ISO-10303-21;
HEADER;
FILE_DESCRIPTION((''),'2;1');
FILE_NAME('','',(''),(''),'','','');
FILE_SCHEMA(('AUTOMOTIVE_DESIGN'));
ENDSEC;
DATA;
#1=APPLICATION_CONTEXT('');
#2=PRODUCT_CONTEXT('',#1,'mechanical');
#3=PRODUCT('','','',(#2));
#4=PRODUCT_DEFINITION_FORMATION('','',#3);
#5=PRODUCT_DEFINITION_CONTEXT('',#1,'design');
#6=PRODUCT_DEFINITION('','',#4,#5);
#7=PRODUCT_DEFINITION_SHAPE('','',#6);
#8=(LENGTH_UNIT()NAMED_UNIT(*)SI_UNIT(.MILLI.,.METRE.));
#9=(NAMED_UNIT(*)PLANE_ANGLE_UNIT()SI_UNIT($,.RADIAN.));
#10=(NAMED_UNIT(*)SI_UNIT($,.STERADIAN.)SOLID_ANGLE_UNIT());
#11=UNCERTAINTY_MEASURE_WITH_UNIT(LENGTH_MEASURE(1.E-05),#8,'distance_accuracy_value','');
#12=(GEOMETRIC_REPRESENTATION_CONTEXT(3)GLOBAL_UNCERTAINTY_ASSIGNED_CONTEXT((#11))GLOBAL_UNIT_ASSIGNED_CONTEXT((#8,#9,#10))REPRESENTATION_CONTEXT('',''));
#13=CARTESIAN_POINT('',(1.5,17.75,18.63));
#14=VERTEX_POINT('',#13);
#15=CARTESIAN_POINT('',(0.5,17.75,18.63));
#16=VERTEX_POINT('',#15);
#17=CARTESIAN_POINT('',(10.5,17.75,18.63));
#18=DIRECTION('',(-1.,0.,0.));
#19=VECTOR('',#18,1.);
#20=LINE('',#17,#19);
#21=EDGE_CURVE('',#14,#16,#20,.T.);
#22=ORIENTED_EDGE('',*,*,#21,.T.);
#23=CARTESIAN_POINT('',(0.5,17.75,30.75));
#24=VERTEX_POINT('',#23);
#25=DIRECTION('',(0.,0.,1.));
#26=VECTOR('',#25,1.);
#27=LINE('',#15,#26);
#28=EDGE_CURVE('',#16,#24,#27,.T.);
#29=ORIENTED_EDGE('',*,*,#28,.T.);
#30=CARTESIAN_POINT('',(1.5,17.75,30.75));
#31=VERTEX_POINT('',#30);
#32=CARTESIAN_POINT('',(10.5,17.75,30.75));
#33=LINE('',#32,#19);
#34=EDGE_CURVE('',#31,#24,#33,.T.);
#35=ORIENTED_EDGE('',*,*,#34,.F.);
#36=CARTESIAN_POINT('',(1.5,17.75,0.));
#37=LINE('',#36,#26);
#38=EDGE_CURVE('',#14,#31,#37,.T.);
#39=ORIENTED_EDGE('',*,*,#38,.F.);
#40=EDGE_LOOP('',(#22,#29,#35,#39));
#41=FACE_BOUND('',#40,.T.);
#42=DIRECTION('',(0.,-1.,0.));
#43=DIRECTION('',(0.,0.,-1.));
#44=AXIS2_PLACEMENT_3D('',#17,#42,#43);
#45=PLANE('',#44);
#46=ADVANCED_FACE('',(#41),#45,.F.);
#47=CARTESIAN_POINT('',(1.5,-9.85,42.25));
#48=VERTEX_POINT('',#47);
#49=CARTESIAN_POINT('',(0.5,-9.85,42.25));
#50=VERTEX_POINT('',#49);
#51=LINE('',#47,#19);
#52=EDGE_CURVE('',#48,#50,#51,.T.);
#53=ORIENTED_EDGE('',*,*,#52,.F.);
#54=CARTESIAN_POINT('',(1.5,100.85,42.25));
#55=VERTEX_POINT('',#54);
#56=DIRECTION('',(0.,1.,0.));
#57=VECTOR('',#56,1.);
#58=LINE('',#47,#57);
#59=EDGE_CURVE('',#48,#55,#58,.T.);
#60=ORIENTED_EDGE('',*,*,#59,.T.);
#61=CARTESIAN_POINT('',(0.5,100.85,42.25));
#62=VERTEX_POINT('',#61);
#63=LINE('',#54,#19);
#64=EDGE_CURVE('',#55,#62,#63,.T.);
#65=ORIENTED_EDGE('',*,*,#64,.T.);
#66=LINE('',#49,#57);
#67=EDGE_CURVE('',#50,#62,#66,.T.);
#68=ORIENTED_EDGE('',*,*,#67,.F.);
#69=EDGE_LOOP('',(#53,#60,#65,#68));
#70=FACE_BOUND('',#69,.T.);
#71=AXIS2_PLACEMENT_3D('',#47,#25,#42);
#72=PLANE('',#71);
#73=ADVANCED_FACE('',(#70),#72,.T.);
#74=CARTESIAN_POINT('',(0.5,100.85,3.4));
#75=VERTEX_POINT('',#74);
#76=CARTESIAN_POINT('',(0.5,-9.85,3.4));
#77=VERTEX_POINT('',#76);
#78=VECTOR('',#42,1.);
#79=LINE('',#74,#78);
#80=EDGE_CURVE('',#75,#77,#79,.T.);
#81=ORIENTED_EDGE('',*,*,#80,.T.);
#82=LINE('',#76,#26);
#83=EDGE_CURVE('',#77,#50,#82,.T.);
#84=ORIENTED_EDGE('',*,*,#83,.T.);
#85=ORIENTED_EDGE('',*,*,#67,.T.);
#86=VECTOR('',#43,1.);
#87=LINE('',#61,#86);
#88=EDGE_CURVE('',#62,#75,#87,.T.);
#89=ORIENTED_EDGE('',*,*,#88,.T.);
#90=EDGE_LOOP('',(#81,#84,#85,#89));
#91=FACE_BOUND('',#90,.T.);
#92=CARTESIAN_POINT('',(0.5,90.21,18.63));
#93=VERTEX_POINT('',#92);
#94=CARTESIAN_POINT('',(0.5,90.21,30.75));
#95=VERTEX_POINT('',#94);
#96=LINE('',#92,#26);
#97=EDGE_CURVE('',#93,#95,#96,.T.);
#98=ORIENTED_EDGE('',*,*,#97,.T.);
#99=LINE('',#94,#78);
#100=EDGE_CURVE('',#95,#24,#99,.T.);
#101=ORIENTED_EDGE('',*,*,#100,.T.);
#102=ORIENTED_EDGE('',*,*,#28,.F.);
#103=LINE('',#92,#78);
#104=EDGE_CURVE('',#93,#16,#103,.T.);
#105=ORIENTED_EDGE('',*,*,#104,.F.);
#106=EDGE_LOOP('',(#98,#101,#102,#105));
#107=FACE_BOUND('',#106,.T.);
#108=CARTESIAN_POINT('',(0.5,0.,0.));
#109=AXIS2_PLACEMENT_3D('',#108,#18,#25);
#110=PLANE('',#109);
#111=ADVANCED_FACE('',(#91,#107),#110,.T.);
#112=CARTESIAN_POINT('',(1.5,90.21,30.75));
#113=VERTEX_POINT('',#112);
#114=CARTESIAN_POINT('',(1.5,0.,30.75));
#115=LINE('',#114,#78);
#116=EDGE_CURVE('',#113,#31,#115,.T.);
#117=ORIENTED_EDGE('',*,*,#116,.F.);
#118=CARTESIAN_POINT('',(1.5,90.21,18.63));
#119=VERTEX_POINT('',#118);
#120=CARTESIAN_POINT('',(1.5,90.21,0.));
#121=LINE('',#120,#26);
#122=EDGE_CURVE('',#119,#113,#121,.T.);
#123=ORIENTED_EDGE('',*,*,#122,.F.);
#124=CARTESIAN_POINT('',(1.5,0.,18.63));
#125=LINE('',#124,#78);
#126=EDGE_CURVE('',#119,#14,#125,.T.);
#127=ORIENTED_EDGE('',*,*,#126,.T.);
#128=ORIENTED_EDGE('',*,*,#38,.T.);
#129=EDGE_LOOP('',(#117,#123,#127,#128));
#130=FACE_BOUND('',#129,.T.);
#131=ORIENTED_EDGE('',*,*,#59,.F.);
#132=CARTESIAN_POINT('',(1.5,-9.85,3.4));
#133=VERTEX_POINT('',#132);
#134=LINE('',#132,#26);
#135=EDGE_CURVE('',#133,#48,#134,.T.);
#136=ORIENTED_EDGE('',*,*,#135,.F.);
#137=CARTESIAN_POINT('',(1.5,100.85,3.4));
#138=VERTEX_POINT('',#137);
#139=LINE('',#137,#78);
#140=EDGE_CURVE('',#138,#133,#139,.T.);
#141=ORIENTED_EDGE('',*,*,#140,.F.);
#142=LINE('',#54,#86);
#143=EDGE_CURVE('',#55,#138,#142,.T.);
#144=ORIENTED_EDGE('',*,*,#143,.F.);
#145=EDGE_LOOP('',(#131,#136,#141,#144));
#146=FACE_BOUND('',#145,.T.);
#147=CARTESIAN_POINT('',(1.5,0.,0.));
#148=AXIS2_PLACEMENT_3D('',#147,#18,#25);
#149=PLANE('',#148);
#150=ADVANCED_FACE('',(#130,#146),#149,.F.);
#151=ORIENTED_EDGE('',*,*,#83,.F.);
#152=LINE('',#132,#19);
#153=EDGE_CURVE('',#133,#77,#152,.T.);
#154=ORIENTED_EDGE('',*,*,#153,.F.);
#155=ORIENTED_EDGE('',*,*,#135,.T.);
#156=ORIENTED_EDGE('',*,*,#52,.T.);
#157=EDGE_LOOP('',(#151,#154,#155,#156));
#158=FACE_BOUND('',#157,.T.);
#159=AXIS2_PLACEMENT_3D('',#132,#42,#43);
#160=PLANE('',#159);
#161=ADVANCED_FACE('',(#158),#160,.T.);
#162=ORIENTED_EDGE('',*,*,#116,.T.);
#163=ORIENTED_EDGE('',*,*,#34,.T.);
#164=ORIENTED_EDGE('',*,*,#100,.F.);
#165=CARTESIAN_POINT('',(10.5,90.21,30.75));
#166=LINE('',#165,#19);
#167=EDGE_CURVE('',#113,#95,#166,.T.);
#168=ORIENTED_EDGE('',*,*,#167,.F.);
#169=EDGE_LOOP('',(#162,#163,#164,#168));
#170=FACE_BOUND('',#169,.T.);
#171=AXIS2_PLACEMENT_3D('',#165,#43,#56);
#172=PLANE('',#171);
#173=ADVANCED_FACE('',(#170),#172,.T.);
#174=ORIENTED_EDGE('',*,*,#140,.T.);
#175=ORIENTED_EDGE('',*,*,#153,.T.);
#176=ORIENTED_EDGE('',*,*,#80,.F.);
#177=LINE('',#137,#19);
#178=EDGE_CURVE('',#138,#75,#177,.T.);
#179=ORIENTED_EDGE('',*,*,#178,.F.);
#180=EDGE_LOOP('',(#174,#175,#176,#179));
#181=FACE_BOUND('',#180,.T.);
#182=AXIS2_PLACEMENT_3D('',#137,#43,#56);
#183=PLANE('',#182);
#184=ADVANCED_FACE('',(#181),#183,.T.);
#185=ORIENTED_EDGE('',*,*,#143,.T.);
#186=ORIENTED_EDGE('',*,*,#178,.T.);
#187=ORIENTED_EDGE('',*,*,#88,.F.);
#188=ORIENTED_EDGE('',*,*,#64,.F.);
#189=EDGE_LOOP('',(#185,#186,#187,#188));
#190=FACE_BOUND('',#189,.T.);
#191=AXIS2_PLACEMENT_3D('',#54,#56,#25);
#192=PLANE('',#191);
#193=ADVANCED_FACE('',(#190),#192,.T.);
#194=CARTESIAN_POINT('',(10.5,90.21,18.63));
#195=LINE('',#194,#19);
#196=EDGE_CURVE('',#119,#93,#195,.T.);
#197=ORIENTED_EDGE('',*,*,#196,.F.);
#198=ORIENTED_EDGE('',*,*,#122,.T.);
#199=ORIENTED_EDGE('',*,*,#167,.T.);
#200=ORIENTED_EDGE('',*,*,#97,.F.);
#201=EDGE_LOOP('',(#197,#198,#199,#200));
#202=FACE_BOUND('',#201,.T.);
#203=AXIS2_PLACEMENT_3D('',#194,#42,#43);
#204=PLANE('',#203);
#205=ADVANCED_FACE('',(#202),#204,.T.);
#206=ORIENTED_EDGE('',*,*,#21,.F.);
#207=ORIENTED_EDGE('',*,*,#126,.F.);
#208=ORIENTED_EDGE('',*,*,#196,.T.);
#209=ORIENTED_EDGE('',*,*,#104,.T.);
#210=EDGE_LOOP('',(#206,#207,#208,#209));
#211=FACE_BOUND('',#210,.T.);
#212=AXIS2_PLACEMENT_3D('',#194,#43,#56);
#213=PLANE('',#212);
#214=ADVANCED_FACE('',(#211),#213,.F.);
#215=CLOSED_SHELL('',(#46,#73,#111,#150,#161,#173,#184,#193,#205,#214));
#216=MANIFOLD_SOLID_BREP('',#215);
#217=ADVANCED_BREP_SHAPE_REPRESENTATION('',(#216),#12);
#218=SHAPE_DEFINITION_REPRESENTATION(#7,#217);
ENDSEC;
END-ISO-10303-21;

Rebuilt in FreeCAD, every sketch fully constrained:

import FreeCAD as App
import Part
import Sketcher

doc = App.newDocument("Part")
body = doc.addObject("PartDesign::Body", "Body")

sketch1 = body.newObject("Sketcher::SketchObject", "Sketch")
sketch1.AttachmentSupport = (doc.getObject("YZ_Plane"), [""])
sketch1.MapMode = "FlatFace"
sketch1.AttachmentOffset = App.Placement(App.Vector(0, 0, 0.5), App.Rotation())
sketch1.addGeometry([
    Part.LineSegment(App.Vector(101, 42, 0), App.Vector(101, 3, 0)),
    Part.LineSegment(App.Vector(101, 3, 0), App.Vector(-10, 3, 0)),
    Part.LineSegment(App.Vector(-10, 3, 0), App.Vector(-10, 42, 0)),
    Part.LineSegment(App.Vector(-10, 42, 0), App.Vector(101, 42, 0)),
], False)
sketch1.addConstraint([
    Sketcher.Constraint("Coincident", 0, 2, 1, 1),
    Sketcher.Constraint("Coincident", 1, 2, 2, 1),
    Sketcher.Constraint("Coincident", 2, 2, 3, 1),
    Sketcher.Constraint("Coincident", 3, 2, 0, 1),
    Sketcher.Constraint("Vertical", 0),
    Sketcher.Constraint("Horizontal", 1),
    Sketcher.Constraint("Vertical", 2),
    Sketcher.Constraint("Horizontal", 3),
    Sketcher.Constraint("DistanceX", 1, 2, 1, 1, 110.7),
    Sketcher.Constraint("DistanceY", 0, 2, 0, 1, 38.85),
    Sketcher.Constraint("DistanceY", -1, 1, 0, 2, 3.4),
    Sketcher.Constraint("DistanceX", -1, 1, 0, 2, 100.85),
])
pad1 = body.newObject("PartDesign::Pad", "Pad")
pad1.Profile = sketch1
pad1.Length = 1

sketch2 = body.newObject("Sketcher::SketchObject", "Sketch001")
sketch2.AttachmentSupport = (doc.getObject("YZ_Plane"), [""])
sketch2.MapMode = "FlatFace"
sketch2.AttachmentOffset = App.Placement(App.Vector(0, 0, 0.5), App.Rotation())
sketch2.addGeometry([
    Part.LineSegment(App.Vector(90, 19, 0), App.Vector(18, 19, 0)),
    Part.LineSegment(App.Vector(18, 19, 0), App.Vector(18, 31, 0)),
    Part.LineSegment(App.Vector(18, 31, 0), App.Vector(90, 31, 0)),
    Part.LineSegment(App.Vector(90, 31, 0), App.Vector(90, 19, 0)),
], False)
sketch2.addConstraint([
    Sketcher.Constraint("Coincident", 0, 2, 1, 1),
    Sketcher.Constraint("Coincident", 1, 2, 2, 1),
    Sketcher.Constraint("Coincident", 2, 2, 3, 1),
    Sketcher.Constraint("Coincident", 3, 2, 0, 1),
    Sketcher.Constraint("Horizontal", 0),
    Sketcher.Constraint("Vertical", 1),
    Sketcher.Constraint("Horizontal", 2),
    Sketcher.Constraint("Vertical", 3),
    Sketcher.Constraint("DistanceX", 0, 2, 0, 1, 72.46),
    Sketcher.Constraint("DistanceY", 1, 1, 1, 2, 12.12),
    Sketcher.Constraint("DistanceX", -1, 1, 0, 2, 17.75),
    Sketcher.Constraint("DistanceY", -1, 1, 0, 2, 18.63),
])
pocket1 = body.newObject("PartDesign::Pocket", "Pocket")
pocket1.Profile = sketch2
pocket1.Length = 10
pocket1.Reversed = True

doc.recompute()
